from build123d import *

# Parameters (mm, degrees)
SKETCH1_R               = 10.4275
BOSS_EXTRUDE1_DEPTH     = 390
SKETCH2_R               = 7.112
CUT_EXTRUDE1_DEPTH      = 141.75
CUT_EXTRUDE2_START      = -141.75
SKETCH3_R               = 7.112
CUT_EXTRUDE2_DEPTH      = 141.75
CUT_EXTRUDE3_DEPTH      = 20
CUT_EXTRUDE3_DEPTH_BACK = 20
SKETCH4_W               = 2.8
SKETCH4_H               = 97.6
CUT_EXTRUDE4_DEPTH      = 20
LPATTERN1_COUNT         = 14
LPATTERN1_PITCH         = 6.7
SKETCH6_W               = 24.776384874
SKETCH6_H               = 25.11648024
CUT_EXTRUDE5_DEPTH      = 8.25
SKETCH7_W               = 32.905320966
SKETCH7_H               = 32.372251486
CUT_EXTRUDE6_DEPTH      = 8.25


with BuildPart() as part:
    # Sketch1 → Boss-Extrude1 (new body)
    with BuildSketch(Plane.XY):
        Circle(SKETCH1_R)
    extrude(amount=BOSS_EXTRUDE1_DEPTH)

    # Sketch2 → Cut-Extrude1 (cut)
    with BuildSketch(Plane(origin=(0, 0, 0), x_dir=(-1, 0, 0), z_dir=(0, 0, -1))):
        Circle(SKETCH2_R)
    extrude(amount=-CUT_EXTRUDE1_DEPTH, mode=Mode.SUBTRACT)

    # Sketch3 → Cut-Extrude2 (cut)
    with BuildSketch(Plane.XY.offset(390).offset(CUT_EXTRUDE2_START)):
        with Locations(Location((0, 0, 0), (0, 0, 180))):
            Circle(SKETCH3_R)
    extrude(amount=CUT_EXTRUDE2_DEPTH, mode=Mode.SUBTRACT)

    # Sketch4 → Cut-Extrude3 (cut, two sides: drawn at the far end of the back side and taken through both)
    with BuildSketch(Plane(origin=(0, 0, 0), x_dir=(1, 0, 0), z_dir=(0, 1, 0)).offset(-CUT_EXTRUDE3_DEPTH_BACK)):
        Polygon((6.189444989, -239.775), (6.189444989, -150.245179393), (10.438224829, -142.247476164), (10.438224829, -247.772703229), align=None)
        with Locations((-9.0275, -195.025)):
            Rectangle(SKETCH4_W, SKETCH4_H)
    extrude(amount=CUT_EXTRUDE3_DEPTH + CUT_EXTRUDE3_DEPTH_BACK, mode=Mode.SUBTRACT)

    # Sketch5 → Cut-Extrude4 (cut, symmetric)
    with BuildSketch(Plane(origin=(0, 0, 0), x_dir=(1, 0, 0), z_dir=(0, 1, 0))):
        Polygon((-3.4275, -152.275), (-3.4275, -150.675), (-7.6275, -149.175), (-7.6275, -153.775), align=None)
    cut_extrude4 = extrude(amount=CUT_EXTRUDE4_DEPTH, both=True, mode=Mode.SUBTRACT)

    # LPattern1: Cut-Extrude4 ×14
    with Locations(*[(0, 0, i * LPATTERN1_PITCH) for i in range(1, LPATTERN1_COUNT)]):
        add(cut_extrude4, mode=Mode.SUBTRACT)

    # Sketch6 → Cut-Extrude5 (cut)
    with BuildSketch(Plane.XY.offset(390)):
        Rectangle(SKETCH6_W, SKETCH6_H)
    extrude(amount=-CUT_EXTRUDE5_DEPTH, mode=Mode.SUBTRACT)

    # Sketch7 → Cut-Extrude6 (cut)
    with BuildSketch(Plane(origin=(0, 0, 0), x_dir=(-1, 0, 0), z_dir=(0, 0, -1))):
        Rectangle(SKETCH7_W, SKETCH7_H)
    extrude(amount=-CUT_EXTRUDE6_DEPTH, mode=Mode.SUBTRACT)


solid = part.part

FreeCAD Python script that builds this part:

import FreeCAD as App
import Part
import Sketcher
from FreeCAD import Vector
Q = App.Units.Quantity

doc = App.newDocument("Part")
body = doc.addObject("PartDesign::Body", "Body")

# Sketch on XY plane
sketch1 = body.newObject("Sketcher::SketchObject", "Sketch")
sketch1.AttachmentSupport = (doc.getObject("XY_Plane"), [""])
sketch1.MapMode = "FlatFace"
sketch1.addGeometry(Part.Circle(Vector(0, 0, 0), Vector(0, 0, 1), 10), False)
sketch1.addConstraint(Sketcher.Constraint("Coincident", 0, 3, -1, 1))
sketch1.addConstraint(Sketcher.Constraint("Diameter", 0, Q("20.855 mm")))
pad1 = body.newObject("PartDesign::Pad", "Pad")
pad1.Profile = sketch1
pad1.Length = 390

# Sketch on XY plane
sketch2 = body.newObject("Sketcher::SketchObject", "Sketch001")
sketch2.AttachmentSupport = (doc.getObject("XY_Plane"), [""])
sketch2.MapMode = "FlatFace"
sketch2.addGeometry(Part.Circle(Vector(0, 0, 0), Vector(0, 0, 1), 7), False)
sketch2.addConstraint(Sketcher.Constraint("Coincident", 0, 3, -1, 1))
sketch2.addConstraint(Sketcher.Constraint("Diameter", 0, Q("14.224 mm")))
pocket1 = body.newObject("PartDesign::Pocket", "Pocket")
pocket1.Profile = sketch2
pocket1.Length = 141.75
pocket1.Reversed = True

# Sketch on XY plane
sketch3 = body.newObject("Sketcher::SketchObject", "Sketch002")
sketch3.AttachmentSupport = (doc.getObject("XY_Plane"), [""])
sketch3.MapMode = "FlatFace"
sketch3.AttachmentOffset = App.Placement(Vector(0, 0, 248.25), App.Rotation())
sketch3.addGeometry(Part.Circle(Vector(0, 0, 0), Vector(0, 0, 1), 7), False)
sketch3.addConstraint(Sketcher.Constraint("Coincident", 0, 3, -1, 1))
sketch3.addConstraint(Sketcher.Constraint("Diameter", 0, Q("14.224 mm")))
pocket2 = body.newObject("PartDesign::Pocket", "Pocket001")
pocket2.Profile = sketch3
pocket2.Length = 141.75
pocket2.Reversed = True

# Sketch on XZ plane
sketch4 = body.newObject("Sketcher::SketchObject", "Sketch003")
sketch4.AttachmentSupport = (doc.getObject("XZ_Plane"), [""])
sketch4.MapMode = "FlatFace"
sketch4.addGeometry(Part.LineSegment(Vector(6.2, 150.2, 0), Vector(6.2, 239.8, 0)), False)
sketch4.addGeometry(Part.LineSegment(Vector(6.2, 239.8, 0), Vector(10.4, 247.8, 0)), False)
sketch4.addGeometry(Part.LineSegment(Vector(10.4, 247.8, 0), Vector(10.4, 142.2, 0)), False)
sketch4.addGeometry(Part.LineSegment(Vector(10.4, 142.2, 0), Vector(6.2, 150.2, 0)), False)
sketch4.addGeometry(Part.LineSegment(Vector(-10.4, 146.2, 0), Vector(-10.4, 243.8, 0)), False)
sketch4.addGeometry(Part.LineSegment(Vector(-10.4, 243.8, 0), Vector(-7.6, 243.8, 0)), False)
sketch4.addGeometry(Part.LineSegment(Vector(-7.6, 243.8, 0), Vector(-7.6, 146.2, 0)), False)
sketch4.addGeometry(Part.LineSegment(Vector(-7.6, 146.2, 0), Vector(-10.4, 146.2, 0)), False)
sketch4.addConstraint(Sketcher.Constraint("Coincident", 0, 2, 1, 1))
sketch4.addConstraint(Sketcher.Constraint("Coincident", 1, 2, 2, 1))
sketch4.addConstraint(Sketcher.Constraint("Coincident", 2, 2, 3, 1))
sketch4.addConstraint(Sketcher.Constraint("Coincident", 3, 2, 0, 1))
sketch4.addConstraint(Sketcher.Constraint("Coincident", 4, 2, 5, 1))
sketch4.addConstraint(Sketcher.Constraint("Coincident", 5, 2, 6, 1))
sketch4.addConstraint(Sketcher.Constraint("Coincident", 6, 2, 7, 1))
sketch4.addConstraint(Sketcher.Constraint("Coincident", 7, 2, 4, 1))
sketch4.addConstraint(Sketcher.Constraint("Vertical", 0))
sketch4.addConstraint(Sketcher.Constraint("Vertical", 2))
sketch4.addConstraint(Sketcher.Constraint("Vertical", 4))
sketch4.addConstraint(Sketcher.Constraint("Horizontal", 5))
sketch4.addConstraint(Sketcher.Constraint("Vertical", 6))
sketch4.addConstraint(Sketcher.Constraint("Horizontal", 7))
sketch4.addConstraint(Sketcher.Constraint("Equal", 1, 3))
sketch4.addConstraint(Sketcher.Constraint("DistanceX", 5, 1, 5, 2, Q("2.8 mm")))
sketch4.addConstraint(Sketcher.Constraint("DistanceY", 4, 1, 4, 2, Q("97.6 mm")))
sketch4.addConstraint(Sketcher.Constraint("DistanceY", 0, 2, 4, 2, Q("4.05 mm")))
sketch4.addConstraint(Sketcher.Constraint("DistanceY", -1, 1, 0, 2, Q("239.775 mm")))
sketch4.addConstraint(Sketcher.Constraint("DistanceY", 0, 1, 0, 2, Q("89.529821 mm")))
sketch4.addConstraint(Sketcher.Constraint("DistanceX", 4, 2, -1, 1, Q("10.4275 mm")))
sketch4.addConstraint(Sketcher.Constraint("DistanceY", 2, 2, 2, 1, Q("105.525227 mm")))
sketch4.addConstraint(Sketcher.Constraint("DistanceX", 0, 2, 1, 2, Q("4.24878 mm")))
sketch4.addConstraint(Sketcher.Constraint("DistanceX", -1, 1, 0, 2, Q("6.189445 mm")))
pocket3 = body.newObject("PartDesign::Pocket", "Pocket002")
pocket3.Profile = sketch4
pocket3.Type = "ThroughAll"
pocket3.Midplane = True

# Sketch on XZ plane
sketch5 = body.newObject("Sketcher::SketchObject", "Sketch004")
sketch5.AttachmentSupport = (doc.getObject("XZ_Plane"), [""])
sketch5.MapMode = "FlatFace"
sketch5.addGeometry(Part.LineSegment(Vector(-3.4, 152.3, 0), Vector(-3.4, 150.7, 0)), False)
sketch5.addGeometry(Part.LineSegment(Vector(-3.4, 150.7, 0), Vector(-7.6, 149.2, 0)), False)
sketch5.addGeometry(Part.LineSegment(Vector(-7.6, 149.2, 0), Vector(-7.6, 153.8, 0)), False)
sketch5.addGeometry(Part.LineSegment(Vector(-7.6, 153.8, 0), Vector(-3.4, 152.3, 0)), False)
sketch5.addConstraint(Sketcher.Constraint("Coincident", 0, 2, 1, 1))
sketch5.addConstraint(Sketcher.Constraint("Coincident", 1, 2, 2, 1))
sketch5.addConstraint(Sketcher.Constraint("Coincident", 2, 2, 3, 1))
sketch5.addConstraint(Sketcher.Constraint("Coincident", 3, 2, 0, 1))
sketch5.addConstraint(Sketcher.Constraint("Vertical", 0))
sketch5.addConstraint(Sketcher.Constraint("Vertical", 2))
sketch5.addConstraint(Sketcher.Constraint("Equal", 1, 3))
sketch5.addConstraint(Sketcher.Constraint("DistanceY", 0, 2, 0, 1, Q("1.6 mm")))
sketch5.addConstraint(Sketcher.Constraint("DistanceY", 2, 1, 2, 2, Q("4.6 mm")))
sketch5.addConstraint(Sketcher.Constraint("DistanceX", 1, 2, 0, 2, Q("4.2 mm")))
sketch5.addConstraint(Sketcher.Constraint("DistanceY", -1, 1, 0, 2, Q("150.675 mm")))
sketch5.addConstraint(Sketcher.Constraint("DistanceX", 0, 2, -1, 1, Q("3.4275 mm")))
pocket4 = body.newObject("PartDesign::Pocket", "Pocket003")
pocket4.Profile = sketch5
pocket4.Length = 40
pocket4.Midplane = True
doc.recompute()

linearpattern = body.newObject("PartDesign::LinearPattern", "LinearPattern")
linearpattern.Originals = [pocket4]
linearpattern.Direction = (doc.getObject("Z_Axis"), [""])
linearpattern.Mode = "offset"
linearpattern.Offset = 6.7
linearpattern.Occurrences = 14
body.Tip = linearpattern

# Sketch on XY plane
sketch6 = body.newObject("Sketcher::SketchObject", "Sketch005")
sketch6.AttachmentSupport = (doc.getObject("XY_Plane"), [""])
sketch6.MapMode = "FlatFace"
sketch6.AttachmentOffset = App.Placement(Vector(0, 0, 390), App.Rotation())
sketch6.addGeometry(Part.LineSegment(Vector(-12, 13, 0), Vector(-12, -13, 0)), False)
sketch6.addGeometry(Part.LineSegment(Vector(-12, -13, 0), Vector(12, -13, 0)), False)
sketch6.addGeometry(Part.LineSegment(Vector(12, -13, 0), Vector(12, 13, 0)), False)
sketch6.addGeometry(Part.LineSegment(Vector(12, 13, 0), Vector(-12, 13, 0)), False)
sketch6.addConstraint(Sketcher.Constraint("Coincident", 0, 2, 1, 1))
sketch6.addConstraint(Sketcher.Constraint("Coincident", 1, 2, 2, 1))
sketch6.addConstraint(Sketcher.Constraint("Coincident", 2, 2, 3, 1))
sketch6.addConstraint(Sketcher.Constraint("Coincident", 3, 2, 0, 1))
sketch6.addConstraint(Sketcher.Constraint("Vertical", 0))
sketch6.addConstraint(Sketcher.Constraint("Horizontal", 1))
sketch6.addConstraint(Sketcher.Constraint("Vertical", 2))
sketch6.addConstraint(Sketcher.Constraint("Horizontal", 3))
sketch6.addConstraint(Sketcher.Constraint("Symmetric", 0, 2, 2, 2, -1, 1))
sketch6.addConstraint(Sketcher.Constraint("DistanceY", 0, 2, 0, 1, Q("25.11648 mm")))
sketch6.addConstraint(Sketcher.Constraint("DistanceX", 1, 1, 1, 2, Q("24.776385 mm")))
pocket5 = body.newObject("PartDesign::Pocket", "Pocket004")
pocket5.Profile = sketch6
pocket5.Length = 8.25

# Sketch on XY plane
sketch7 = body.newObject("Sketcher::SketchObject", "Sketch006")
sketch7.AttachmentSupport = (doc.getObject("XY_Plane"), [""])
sketch7.MapMode = "FlatFace"
sketch7.addGeometry(Part.LineSegment(Vector(16, 16, 0), Vector(16, -16, 0)), False)
sketch7.addGeometry(Part.LineSegment(Vector(16, -16, 0), Vector(-16, -16, 0)), False)
sketch7.addGeometry(Part.LineSegment(Vector(-16, -16, 0), Vector(-16, 16, 0)), False)
sketch7.addGeometry(Part.LineSegment(Vector(-16, 16, 0), Vector(16, 16, 0)), False)
sketch7.addConstraint(Sketcher.Constraint("Coincident", 0, 2, 1, 1))
sketch7.addConstraint(Sketcher.Constraint("Coincident", 1, 2, 2, 1))
sketch7.addConstraint(Sketcher.Constraint("Coincident", 2, 2, 3, 1))
sketch7.addConstraint(Sketcher.Constraint("Coincident", 3, 2, 0, 1))
sketch7.addConstraint(Sketcher.Constraint("Vertical", 0))
sketch7.addConstraint(Sketcher.Constraint("Horizontal", 1))
sketch7.addConstraint(Sketcher.Constraint("Vertical", 2))
sketch7.addConstraint(Sketcher.Constraint("Horizontal", 3))
sketch7.addConstraint(Sketcher.Constraint("Symmetric", 0, 2, 2, 2, -1, 1))
sketch7.addConstraint(Sketcher.Constraint("DistanceX", 1, 2, 1, 1, Q("32.905321 mm")))
sketch7.addConstraint(Sketcher.Constraint("DistanceY", 0, 2, 0, 1, Q("32.372251 mm")))
pocket6 = body.newObject("PartDesign::Pocket", "Pocket005")
pocket6.Profile = sketch7
pocket6.Length = 8.25
pocket6.Reversed = True

doc.recompute()
